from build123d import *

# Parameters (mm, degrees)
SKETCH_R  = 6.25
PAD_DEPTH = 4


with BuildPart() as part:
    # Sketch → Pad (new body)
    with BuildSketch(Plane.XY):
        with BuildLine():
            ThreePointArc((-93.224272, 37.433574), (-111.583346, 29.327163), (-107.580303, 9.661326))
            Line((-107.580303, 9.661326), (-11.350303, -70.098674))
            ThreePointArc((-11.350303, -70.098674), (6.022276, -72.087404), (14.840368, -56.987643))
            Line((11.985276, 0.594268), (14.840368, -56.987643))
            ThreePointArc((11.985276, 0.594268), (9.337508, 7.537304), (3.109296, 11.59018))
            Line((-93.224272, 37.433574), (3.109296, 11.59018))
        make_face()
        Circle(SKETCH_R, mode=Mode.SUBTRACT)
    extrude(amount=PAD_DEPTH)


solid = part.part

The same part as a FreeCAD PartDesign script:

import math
import FreeCAD as App
import Part
import Sketcher

V = App.Vector
Q = App.Units.Quantity

doc = App.newDocument("Part")
body = doc.addObject("PartDesign::Body", "Body")

# Sketch on XY plane
sketch1 = body.newObject("Sketcher::SketchObject", "Sketch")
sketch1.AttachmentSupport = (doc.getObject("XY_Plane"), [""])
sketch1.MapMode = "FlatFace"
sketch1.addGeometry(Part.ArcOfCircle(Part.Circle(V(-97.37, 21.98, 0), V(0, 0, 1), 16), math.radians(74.98286), math.radians(230.346444)), False)
sketch1.addGeometry(Part.LineSegment(V(-107.580303, 9.661326, 0), V(-11.350303, -70.098674, 0)), False)
sketch1.addGeometry(Part.ArcOfCircle(Part.Circle(V(-1.14, -57.78, 0), V(0, 0, 1), 16), math.radians(-129.653555), math.radians(2.838582)), False)
sketch1.addGeometry(Part.LineSegment(V(14.840368, -56.987643, 0), V(11.985276, 0.594268, 0)), False)
sketch1.addGeometry(Part.ArcOfCircle(Part.Circle(V(0.000002, 0.000002, 0), V(0, 0, 1), 11.999998), math.radians(2.838574), math.radians(74.982867)), False)
sketch1.addGeometry(Part.LineSegment(V(3.109296, 11.59018, 0), V(-93.224272, 37.433574, 0)), False)
sketch1.addGeometry(Part.Circle(V(0, 0, 0), V(0, 0, 1), 6.25), False)
sketch1.addConstraint(Sketcher.Constraint("Tangent", 0, 2, 1, 1))
sketch1.addConstraint(Sketcher.Constraint("Tangent", 1, 2, 2, 1))
sketch1.addConstraint(Sketcher.Constraint("Tangent", 2, 2, 3, 1))
sketch1.addConstraint(Sketcher.Constraint("Tangent", 3, 2, 4, 1))
sketch1.addConstraint(Sketcher.Constraint("Tangent", 4, 2, 5, 1))
sketch1.addConstraint(Sketcher.Constraint("Tangent", 5, 2, 0, 1))
sketch1.addConstraint(Sketcher.Constraint("Coincident", 4, 3, -1, 1))
sketch1.addConstraint(Sketcher.Constraint("Coincident", 6, 3, -1, 1))
sketch1.addConstraint(Sketcher.Constraint("Equal", 0, 2))
sketch1.addConstraint(Sketcher.Constraint("Radius", 0, Q("16 mm")))
sketch1.addConstraint(Sketcher.Constraint("Diameter", 6, Q("12.5 mm")))
sketch1.addConstraint(Sketcher.Constraint("DistanceX", 0, 3, -1, 1, Q("97.37 mm")))
sketch1.addConstraint(Sketcher.Constraint("DistanceY", -1, 1, 0, 3, Q("21.98 mm")))
sketch1.addConstraint(Sketcher.Constraint("DistanceX", 2, 3, -1, 1, Q("1.14 mm")))
sketch1.addConstraint(Sketcher.Constraint("DistanceY", 2, 3, -1, 1, Q("57.78 mm")))
sketch1.addConstraint(Sketcher.Constraint("Radius", 4, Q("11.999998 mm")))
pad1 = body.newObject("PartDesign::Pad", "Pad")
pad1.Profile = sketch1
pad1.Length = 4

doc.recompute()
